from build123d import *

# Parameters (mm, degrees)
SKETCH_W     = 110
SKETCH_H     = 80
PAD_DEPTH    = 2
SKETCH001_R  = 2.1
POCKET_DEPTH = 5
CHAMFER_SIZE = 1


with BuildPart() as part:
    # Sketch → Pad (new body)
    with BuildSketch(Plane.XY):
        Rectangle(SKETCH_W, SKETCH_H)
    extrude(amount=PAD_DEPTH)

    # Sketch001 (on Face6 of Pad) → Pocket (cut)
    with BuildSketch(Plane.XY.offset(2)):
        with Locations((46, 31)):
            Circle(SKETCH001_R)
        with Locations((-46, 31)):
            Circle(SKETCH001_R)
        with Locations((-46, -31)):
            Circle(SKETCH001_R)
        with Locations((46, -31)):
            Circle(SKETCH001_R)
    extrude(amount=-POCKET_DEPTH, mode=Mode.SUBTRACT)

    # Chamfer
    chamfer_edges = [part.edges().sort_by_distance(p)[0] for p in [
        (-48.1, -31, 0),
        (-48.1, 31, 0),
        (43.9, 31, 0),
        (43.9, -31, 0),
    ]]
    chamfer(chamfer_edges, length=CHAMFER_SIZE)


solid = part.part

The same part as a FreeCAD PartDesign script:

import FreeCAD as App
import Part
import Sketcher

V = App.Vector
Q = App.Units.Quantity


def edges_at(feature, points):
    """Names of the edges that pass closest to the given points."""
    edges = feature.Shape.Edges
    near = lambda p: min(range(len(edges)), key=lambda i: edges[i].distToShape(Part.Vertex(*p))[0])
    return sorted({f"Edge{near(p) + 1}" for p in points})


def add_polygon(sketch, points):
    """Adds a closed chain of lines whose ends are joined by coincident constraints."""
    first, n = sketch.GeometryCount, len(points)
    for a, b in zip(points, points[1:] + points[:1]):
        sketch.addGeometry(Part.LineSegment(App.Vector(*a, 0), App.Vector(*b, 0)), False)
    for i in range(n):
        sketch.addConstraint(Sketcher.Constraint("Coincident", first + i, 2, first + (i + 1) % n, 1))

doc = App.newDocument("Part")
params = doc.addObject("Spreadsheet::Sheet", "Params")
for row, (alias, value) in enumerate([
    ("sketch1_width", "110 mm"),
    ("sketch1_height", "80 mm"),
    ("pad1_length", "2 mm"),
    ("sketch2_diameter", "4.2 mm"),
    ("pocket1_length", "5 mm"),
    ("chamfer_size", "1 mm"),
], start=1):
    params.set(f"A{row}", alias)
    params.set(f"B{row}", "=" + value)
    params.setAlias(f"B{row}", alias)

body = doc.addObject("PartDesign::Body", "Body")

# Sketch on XY plane
sketch1 = doc.addObject("Sketcher::SketchObject", "Sketch")
body.addObject(sketch1)
sketch1.AttachmentSupport = (doc.XY_Plane, [""])
sketch1.MapMode = "FlatFace"
add_polygon(sketch1, [(-55, 40), (-55, -40), (55, -40), (55, 40)])  # lines 0-3
sketch1.addConstraint([
    Sketcher.Constraint("Vertical", 0),
    Sketcher.Constraint("Horizontal", 1),
    Sketcher.Constraint("Vertical", 2),
    Sketcher.Constraint("Horizontal", 3),
    Sketcher.Constraint("Symmetric", 0, 2, 2, 2, -1, 1),
    Sketcher.Constraint("DistanceX", 1, 1, 1, 2, Q("110 mm")),
    Sketcher.Constraint("DistanceY", 0, 2, 0, 1, Q("80 mm")),
])
sketch1.setExpression("Constraints[9]", "Params.sketch1_width")
sketch1.setExpression("Constraints[10]", "Params.sketch1_height")
pad1 = doc.addObject("PartDesign::Pad", "Pad")
body.addObject(pad1)
pad1.Profile = sketch1
pad1.setExpression("Length", "Params.pad1_length")

# Sketch on XY plane
sketch2 = doc.addObject("Sketcher::SketchObject", "Sketch001")
body.addObject(sketch2)
sketch2.AttachmentSupport = (doc.XY_Plane, [""])
sketch2.MapMode = "FlatFace"
sketch2.AttachmentOffset = App.Placement(V(0, 0, 2), App.Rotation())
sketch2.addGeometry([
    Part.Circle(V(46, 31, 0), V(0, 0, 1), 2.1),
    Part.Circle(V(-46, 31, 0), V(0, 0, 1), 2.1),
    Part.Circle(V(-46, -31, 0), V(0, 0, 1), 2.1),
    Part.Circle(V(46, -31, 0), V(0, 0, 1), 2.1),
], False)
sketch2.addConstraint([
    Sketcher.Constraint("Equal", 0, 1),
    Sketcher.Constraint("Equal", 1, 2),
    Sketcher.Constraint("Equal", 2, 3),
    Sketcher.Constraint("Symmetric", 0, 3, 2, 3, -1, 1),
    Sketcher.Constraint("Symmetric", 1, 3, 3, 3, -1, 1),
    Sketcher.Constraint("Symmetric", 0, 3, 1, 3, -2),
    Sketcher.Constraint("Diameter", 0, Q("4.2 mm")),
    Sketcher.Constraint("DistanceX", -1, 1, 0, 3, Q("46 mm")),
    Sketcher.Constraint("DistanceY", -1, 1, 0, 3, Q("31 mm")),
])
sketch2.setExpression("Constraints[6]", "Params.sketch2_diameter")
pocket1 = doc.addObject("PartDesign::Pocket", "Pocket")
body.addObject(pocket1)
pocket1.Profile = sketch2
pocket1.setExpression("Length", "Params.pocket1_length")
doc.recompute()

chamfer = doc.addObject("PartDesign::Chamfer", "Chamfer")
body.addObject(chamfer)
chamfer.Base = (pocket1, edges_at(pocket1, [
    (-48.1, -31, 0),
    (-48.1, 31, 0),
    (43.9, 31, 0),
    (43.9, -31, 0),
]))
chamfer.setExpression("Size", "Params.chamfer_size")

doc.recompute()
